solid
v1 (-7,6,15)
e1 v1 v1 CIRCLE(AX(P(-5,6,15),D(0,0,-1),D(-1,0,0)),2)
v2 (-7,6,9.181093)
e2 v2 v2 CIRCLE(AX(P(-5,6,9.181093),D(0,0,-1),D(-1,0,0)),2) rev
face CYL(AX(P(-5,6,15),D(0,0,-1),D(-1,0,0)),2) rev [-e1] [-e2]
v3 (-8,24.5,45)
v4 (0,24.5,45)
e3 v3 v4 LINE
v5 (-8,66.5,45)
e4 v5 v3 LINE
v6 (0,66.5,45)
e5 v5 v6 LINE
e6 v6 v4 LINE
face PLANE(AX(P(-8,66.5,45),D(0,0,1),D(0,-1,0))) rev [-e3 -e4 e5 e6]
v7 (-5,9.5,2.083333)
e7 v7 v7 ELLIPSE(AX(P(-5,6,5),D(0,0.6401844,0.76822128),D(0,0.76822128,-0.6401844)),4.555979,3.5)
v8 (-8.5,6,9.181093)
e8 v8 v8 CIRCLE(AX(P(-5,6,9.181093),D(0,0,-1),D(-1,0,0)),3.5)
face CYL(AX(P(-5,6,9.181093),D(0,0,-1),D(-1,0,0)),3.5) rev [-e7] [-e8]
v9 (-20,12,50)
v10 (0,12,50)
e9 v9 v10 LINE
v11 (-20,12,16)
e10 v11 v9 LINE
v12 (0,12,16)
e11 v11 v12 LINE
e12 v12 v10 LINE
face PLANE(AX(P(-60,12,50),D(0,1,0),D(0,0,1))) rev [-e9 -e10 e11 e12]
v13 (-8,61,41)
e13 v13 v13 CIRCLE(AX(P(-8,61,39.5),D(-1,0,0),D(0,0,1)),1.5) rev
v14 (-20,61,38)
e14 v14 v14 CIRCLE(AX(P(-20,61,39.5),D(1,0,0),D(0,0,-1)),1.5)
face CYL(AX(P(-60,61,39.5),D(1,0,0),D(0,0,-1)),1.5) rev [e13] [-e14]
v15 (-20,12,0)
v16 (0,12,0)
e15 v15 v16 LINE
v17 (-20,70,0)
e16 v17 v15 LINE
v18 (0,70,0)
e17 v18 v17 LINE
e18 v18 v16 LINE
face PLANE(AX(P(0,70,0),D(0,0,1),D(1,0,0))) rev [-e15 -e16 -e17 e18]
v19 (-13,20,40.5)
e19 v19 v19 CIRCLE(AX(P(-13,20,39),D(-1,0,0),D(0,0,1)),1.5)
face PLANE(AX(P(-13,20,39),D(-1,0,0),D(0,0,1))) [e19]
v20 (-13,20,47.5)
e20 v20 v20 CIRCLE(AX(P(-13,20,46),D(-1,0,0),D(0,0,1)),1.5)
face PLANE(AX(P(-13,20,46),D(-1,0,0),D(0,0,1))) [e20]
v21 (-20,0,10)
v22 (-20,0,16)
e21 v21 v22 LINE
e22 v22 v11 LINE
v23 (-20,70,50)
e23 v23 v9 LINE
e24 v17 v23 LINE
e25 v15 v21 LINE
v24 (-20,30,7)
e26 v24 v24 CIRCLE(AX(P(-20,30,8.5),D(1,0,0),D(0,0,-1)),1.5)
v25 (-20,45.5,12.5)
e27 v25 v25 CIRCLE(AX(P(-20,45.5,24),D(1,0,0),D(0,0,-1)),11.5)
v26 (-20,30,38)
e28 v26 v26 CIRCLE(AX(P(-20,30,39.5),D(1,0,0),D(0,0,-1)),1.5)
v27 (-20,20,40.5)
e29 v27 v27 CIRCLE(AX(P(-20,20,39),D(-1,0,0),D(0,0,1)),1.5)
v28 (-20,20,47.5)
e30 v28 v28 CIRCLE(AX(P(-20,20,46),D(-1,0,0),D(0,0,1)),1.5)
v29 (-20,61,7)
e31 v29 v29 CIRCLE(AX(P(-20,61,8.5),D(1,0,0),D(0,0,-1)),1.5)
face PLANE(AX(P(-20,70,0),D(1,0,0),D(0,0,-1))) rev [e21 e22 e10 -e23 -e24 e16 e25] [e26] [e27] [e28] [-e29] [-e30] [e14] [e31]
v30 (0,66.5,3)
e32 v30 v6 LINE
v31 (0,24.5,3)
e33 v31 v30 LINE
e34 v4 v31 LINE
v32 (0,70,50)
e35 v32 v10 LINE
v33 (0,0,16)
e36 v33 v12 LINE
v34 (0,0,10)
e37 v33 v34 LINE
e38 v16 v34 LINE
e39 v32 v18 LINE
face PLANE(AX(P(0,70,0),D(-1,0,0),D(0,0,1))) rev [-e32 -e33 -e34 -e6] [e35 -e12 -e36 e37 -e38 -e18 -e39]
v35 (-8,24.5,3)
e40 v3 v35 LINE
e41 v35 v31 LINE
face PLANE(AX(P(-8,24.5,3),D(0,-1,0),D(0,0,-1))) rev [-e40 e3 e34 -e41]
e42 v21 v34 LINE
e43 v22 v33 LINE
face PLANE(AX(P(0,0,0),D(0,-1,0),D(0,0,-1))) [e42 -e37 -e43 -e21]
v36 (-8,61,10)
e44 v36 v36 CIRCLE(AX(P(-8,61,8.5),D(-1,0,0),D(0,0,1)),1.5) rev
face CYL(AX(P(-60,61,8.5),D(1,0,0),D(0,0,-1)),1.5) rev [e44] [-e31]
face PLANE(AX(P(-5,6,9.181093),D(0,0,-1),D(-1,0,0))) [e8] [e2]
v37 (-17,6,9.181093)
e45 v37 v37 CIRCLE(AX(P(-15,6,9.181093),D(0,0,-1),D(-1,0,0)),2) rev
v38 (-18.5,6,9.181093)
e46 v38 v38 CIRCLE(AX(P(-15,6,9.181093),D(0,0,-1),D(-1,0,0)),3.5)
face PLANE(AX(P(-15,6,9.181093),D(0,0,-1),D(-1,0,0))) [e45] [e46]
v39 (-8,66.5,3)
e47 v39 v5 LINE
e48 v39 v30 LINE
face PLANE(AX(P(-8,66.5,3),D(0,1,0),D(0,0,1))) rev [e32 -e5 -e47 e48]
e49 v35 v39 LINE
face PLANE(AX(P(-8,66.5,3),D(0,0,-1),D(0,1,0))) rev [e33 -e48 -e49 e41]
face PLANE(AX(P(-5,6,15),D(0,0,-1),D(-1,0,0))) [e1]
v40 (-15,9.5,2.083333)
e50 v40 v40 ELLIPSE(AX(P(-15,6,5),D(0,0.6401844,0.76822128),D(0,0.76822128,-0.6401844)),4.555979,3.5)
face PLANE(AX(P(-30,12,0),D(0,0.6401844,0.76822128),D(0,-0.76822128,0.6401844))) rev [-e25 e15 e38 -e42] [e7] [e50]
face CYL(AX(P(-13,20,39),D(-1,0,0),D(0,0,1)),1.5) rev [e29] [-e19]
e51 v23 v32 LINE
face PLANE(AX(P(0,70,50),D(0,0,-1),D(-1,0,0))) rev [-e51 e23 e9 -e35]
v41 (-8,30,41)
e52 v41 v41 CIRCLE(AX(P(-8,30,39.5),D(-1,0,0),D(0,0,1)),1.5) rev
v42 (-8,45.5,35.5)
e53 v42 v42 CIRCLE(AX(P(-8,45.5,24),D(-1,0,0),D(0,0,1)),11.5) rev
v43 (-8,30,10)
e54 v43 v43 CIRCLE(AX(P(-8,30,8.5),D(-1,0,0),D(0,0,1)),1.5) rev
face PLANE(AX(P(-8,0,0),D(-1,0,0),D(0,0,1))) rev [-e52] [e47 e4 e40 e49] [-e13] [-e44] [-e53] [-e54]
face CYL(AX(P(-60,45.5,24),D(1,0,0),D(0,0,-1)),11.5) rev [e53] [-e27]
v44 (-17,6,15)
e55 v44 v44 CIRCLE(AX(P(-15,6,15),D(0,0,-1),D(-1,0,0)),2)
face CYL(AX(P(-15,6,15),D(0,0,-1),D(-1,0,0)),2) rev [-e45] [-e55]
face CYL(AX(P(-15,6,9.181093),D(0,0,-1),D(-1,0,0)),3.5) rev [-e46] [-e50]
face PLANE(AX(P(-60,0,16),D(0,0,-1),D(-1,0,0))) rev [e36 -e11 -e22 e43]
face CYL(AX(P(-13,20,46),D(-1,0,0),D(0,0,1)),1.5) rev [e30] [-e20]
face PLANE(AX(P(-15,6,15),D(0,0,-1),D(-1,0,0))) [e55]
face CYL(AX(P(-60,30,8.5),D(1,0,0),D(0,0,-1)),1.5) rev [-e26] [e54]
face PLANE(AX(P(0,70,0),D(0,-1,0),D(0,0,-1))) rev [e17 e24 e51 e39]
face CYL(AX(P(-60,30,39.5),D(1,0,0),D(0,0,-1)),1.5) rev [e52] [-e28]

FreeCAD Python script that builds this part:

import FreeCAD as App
import Part
import Sketcher

V = App.Vector

doc = App.newDocument("Part")
params = doc.addObject("Spreadsheet::Sheet", "Params")
for row, (alias, value) in enumerate([
    ("sketch1_width", "20 mm"),
    ("sketch1_height", "50 mm"),
    ("pad1_length", "70 mm"),
    ("sketch2_diameter", "3 mm"),
    ("sketch2_diameter2", "23 mm"),
    ("pocket1_length", "60 mm"),
    ("sketch3_width", "12 mm"),
    ("sketch3_height", "34 mm"),
    ("pocket2_length", "60 mm"),
    ("sketch4_diameter", "4 mm"),
    ("pocket3_length", "15 mm"),
    ("sketch5_width", "42 mm"),
    ("pocket4_length", "8 mm"),
    ("sketch6_width", "12 mm"),
    ("sketch6_height", "10 mm"),
    ("pocket5_length", "30 mm"),
    ("sketch7_diameter", "7 mm"),
    ("pocket6_length", "9.181093 mm"),
    ("sketch8_diameter", "3 mm"),
    ("pocket7_length", "7 mm"),
], start=1):
    params.set(f"A{row}", alias)
    params.set(f"B{row}", "=" + value)
    params.setAlias(f"B{row}", alias)

body = doc.addObject("PartDesign::Body", "Body")

# Sketch on XZ plane
sketch1 = body.newObject("Sketcher::SketchObject", "Sketch")
sketch1.AttachmentSupport = (doc.getObject("XZ_Plane"), [""])
sketch1.MapMode = "FlatFace"
sketch1.addGeometry([
    Part.LineSegment(V(-20, 0, 0), V(-20, 50, 0)),
    Part.LineSegment(V(-20, 50, 0), V(0, 50, 0)),
    Part.LineSegment(V(0, 50, 0), V(0, 0, 0)),
    Part.LineSegment(V(0, 0, 0), V(-20, 0, 0)),
], False)
sketch1.addConstraint([
    Sketcher.Constraint("Coincident", 0, 2, 1, 1),
    Sketcher.Constraint("Coincident", 1, 2, 2, 1),
    Sketcher.Constraint("Coincident", 2, 2, 3, 1),
    Sketcher.Constraint("Coincident", 3, 2, 0, 1),
    Sketcher.Constraint("Vertical", 0),
    Sketcher.Constraint("Horizontal", 1),
    Sketcher.Constraint("Vertical", 2),
    Sketcher.Constraint("Horizontal", 3),
    Sketcher.Constraint("Coincident", 2, 2, -1, 1),
    Sketcher.Constraint("DistanceX", 1, 1, 1, 2, 20.0),
    Sketcher.Constraint("DistanceY", 0, 1, 0, 2, 50.0),
])
sketch1.setExpression("Constraints[9]", "Params.sketch1_width")
sketch1.setExpression("Constraints[10]", "Params.sketch1_height")
pad1 = body.newObject("PartDesign::Pad", "Pad")
pad1.Profile = sketch1
pad1.setExpression("Length", "Params.pad1_length")
pad1.Reversed = True

# Sketch on YZ plane
sketch2 = body.newObject("Sketcher::SketchObject", "Sketch001")
sketch2.AttachmentSupport = (doc.getObject("YZ_Plane"), [""])
sketch2.MapMode = "FlatFace"
sketch2.addGeometry([
    Part.Circle(V(61, 8.5, 0), V(0, 0, 1), 1.5),  # 0
    Part.Circle(V(45.5, 24, 0), V(0, 0, 1), 11.5),  # 1
    Part.Circle(V(30, 8.5, 0), V(0, 0, 1), 1.5),  # 2
    Part.Circle(V(30, 39.5, 0), V(0, 0, 1), 1.5),  # 3
    Part.Circle(V(61, 39.5, 0), V(0, 0, 1), 1.5),  # 4
], False)
sketch2.addConstraint([
    Sketcher.Constraint("Equal", 0, 2),
    Sketcher.Constraint("Equal", 2, 3),
    Sketcher.Constraint("Equal", 3, 4),
    Sketcher.Constraint("Horizontal", 0, 3, 2, 3),
    Sketcher.Constraint("Horizontal", 3, 3, 4, 3),
    Sketcher.Constraint("Vertical", 2, 3, 3, 3),
    Sketcher.Constraint("Vertical", 0, 3, 4, 3),
    Sketcher.Constraint("Diameter", 0, 3.0),
    Sketcher.Constraint("Diameter", 1, 23.0),
    Sketcher.Constraint("DistanceX", -1, 1, 0, 3, 61.0),
    Sketcher.Constraint("DistanceY", -1, 1, 1, 3, 24.0),
    Sketcher.Constraint("DistanceX", -1, 1, 2, 3, 30.0),
    Sketcher.Constraint("DistanceY", 2, 3, 3, 3, 31.0),
    Sketcher.Constraint("DistanceY", -1, 1, 0, 3, 8.5),
    Sketcher.Constraint("DistanceX", -1, 1, 1, 3, 45.5),
])
sketch2.setExpression("Constraints[7]", "Params.sketch2_diameter")
sketch2.setExpression("Constraints[8]", "Params.sketch2_diameter2")
pocket1 = body.newObject("PartDesign::Pocket", "Pocket")
pocket1.Profile = sketch2
pocket1.setExpression("Length", "Params.pocket1_length")

# Sketch on YZ plane
sketch3 = body.newObject("Sketcher::SketchObject", "Sketch002")
sketch3.AttachmentSupport = (doc.getObject("YZ_Plane"), [""])
sketch3.MapMode = "FlatFace"
sketch3.addGeometry([
    Part.LineSegment(V(12, 50, 0), V(0, 50, 0)),
    Part.LineSegment(V(0, 50, 0), V(0, 16, 0)),
    Part.LineSegment(V(0, 16, 0), V(12, 16, 0)),
    Part.LineSegment(V(12, 16, 0), V(12, 50, 0)),
], False)
sketch3.addConstraint([
    Sketcher.Constraint("Coincident", 0, 2, 1, 1),
    Sketcher.Constraint("Coincident", 1, 2, 2, 1),
    Sketcher.Constraint("Coincident", 2, 2, 3, 1),
    Sketcher.Constraint("Coincident", 3, 2, 0, 1),
    Sketcher.Constraint("Horizontal", 0),
    Sketcher.Constraint("Vertical", 1),
    Sketcher.Constraint("Horizontal", 2),
    Sketcher.Constraint("Vertical", 3),
    Sketcher.Constraint("PointOnObject", 0, 2, -2),
    Sketcher.Constraint("DistanceX", 0, 2, 0, 1, 12.0),
    Sketcher.Constraint("DistanceY", 1, 2, 1, 1, 34.0),
    Sketcher.Constraint("DistanceY", -1, 1, 0, 2, 50.0),
])
sketch3.setExpression("Constraints[9]", "Params.sketch3_width")
sketch3.setExpression("Constraints[10]", "Params.sketch3_height")
pocket2 = body.newObject("PartDesign::Pocket", "Pocket001")
pocket2.Profile = sketch3
pocket2.setExpression("Length", "Params.pocket2_length")

# Sketch on XY plane
sketch4 = body.newObject("Sketcher::SketchObject", "Sketch003")
sketch4.AttachmentSupport = (doc.getObject("XY_Plane"), [""])
sketch4.MapMode = "FlatFace"
sketch4.addGeometry([
    Part.Circle(V(-15, 6, 0), V(0, 0, 1), 2),
    Part.Circle(V(-5, 6, 0), V(0, 0, 1), 2),
], False)
sketch4.addConstraint([
    Sketcher.Constraint("Equal", 0, 1),
    Sketcher.Constraint("Horizontal", 0, 3, 1, 3),
    Sketcher.Constraint("Diameter", 0, 4.0),
    Sketcher.Constraint("DistanceX", 0, 3, -1, 1, 15.0),
    Sketcher.Constraint("DistanceY", -1, 1, 0, 3, 6.0),
    Sketcher.Constraint("DistanceX", 1, 3, -1, 1, 5.0),
])
sketch4.setExpression("Constraints[2]", "Params.sketch4_diameter")
pocket3 = body.newObject("PartDesign::Pocket", "Pocket002")
pocket3.Profile = sketch4
pocket3.setExpression("Length", "Params.pocket3_length")
pocket3.Reversed = True

# Sketch on YZ plane
sketch5 = body.newObject("Sketcher::SketchObject", "Sketch004")
sketch5.AttachmentSupport = (doc.getObject("YZ_Plane"), [""])
sketch5.MapMode = "FlatFace"
sketch5.addGeometry([
    Part.LineSegment(V(66.5, 45, 0), V(24.5, 45, 0)),
    Part.LineSegment(V(24.5, 45, 0), V(24.5, 3, 0)),
    Part.LineSegment(V(24.5, 3, 0), V(66.5, 3, 0)),
    Part.LineSegment(V(66.5, 3, 0), V(66.5, 45, 0)),
], False)
sketch5.addConstraint([
    Sketcher.Constraint("Coincident", 0, 2, 1, 1),
    Sketcher.Constraint("Coincident", 1, 2, 2, 1),
    Sketcher.Constraint("Coincident", 2, 2, 3, 1),
    Sketcher.Constraint("Coincident", 3, 2, 0, 1),
    Sketcher.Constraint("Horizontal", 0),
    Sketcher.Constraint("Vertical", 1),
    Sketcher.Constraint("Horizontal", 2),
    Sketcher.Constraint("Vertical", 3),
    Sketcher.Constraint("Equal", 2, 1),
    Sketcher.Constraint("DistanceX", 0, 2, 0, 1, 42.0),
    Sketcher.Constraint("DistanceY", -1, 1, 0, 2, 45.0),
    Sketcher.Constraint("DistanceX", -1, 1, 0, 2, 24.5),
])
sketch5.setExpression("Constraints[9]", "Params.sketch5_width")
pocket4 = body.newObject("PartDesign::Pocket", "Pocket003")
pocket4.Profile = sketch5
pocket4.setExpression("Length", "Params.pocket4_length")

# Sketch on YZ plane
sketch6 = body.newObject("Sketcher::SketchObject", "Sketch005")
sketch6.AttachmentSupport = (doc.getObject("YZ_Plane"), [""])
sketch6.MapMode = "FlatFace"
sketch6.addGeometry([
    Part.LineSegment(V(0, 10, 0), V(0, 0, 0)),
    Part.LineSegment(V(0, 0, 0), V(12, 0, 0)),
    Part.LineSegment(V(12, 0, 0), V(0, 10, 0)),
], False)
sketch6.addConstraint([
    Sketcher.Constraint("Coincident", 0, 2, 1, 1),
    Sketcher.Constraint("Coincident", 1, 2, 2, 1),
    Sketcher.Constraint("Coincident", 2, 2, 0, 1),
    Sketcher.Constraint("Vertical", 0),
    Sketcher.Constraint("Horizontal", 1),
    Sketcher.Constraint("Coincident", 0, 2, -1, 1),
    Sketcher.Constraint("DistanceX", 1, 1, 1, 2, 12.0),
    Sketcher.Constraint("DistanceY", 0, 2, 0, 1, 10.0),
])
sketch6.setExpression("Constraints[6]", "Params.sketch6_width")
sketch6.setExpression("Constraints[7]", "Params.sketch6_height")
pocket5 = body.newObject("PartDesign::Pocket", "Pocket004")
pocket5.Profile = sketch6
pocket5.setExpression("Length", "Params.pocket5_length")

# Sketch on XY plane
sketch7 = body.newObject("Sketcher::SketchObject", "Sketch006")
sketch7.AttachmentSupport = (doc.getObject("XY_Plane"), [""])
sketch7.MapMode = "FlatFace"
sketch7.addGeometry([
    Part.Circle(V(-15, 6, 0), V(0, 0, 1), 3.5),
    Part.Circle(V(-5, 6, 0), V(0, 0, 1), 3.5),
], False)
sketch7.addConstraint([
    Sketcher.Constraint("Equal", 0, 1),
    Sketcher.Constraint("Horizontal", 0, 3, 1, 3),
    Sketcher.Constraint("Diameter", 0, 7.0),
    Sketcher.Constraint("DistanceX", 0, 3, -1, 1, 15.0),
    Sketcher.Constraint("DistanceY", -1, 1, 0, 3, 6.0),
    Sketcher.Constraint("DistanceX", 1, 3, -1, 1, 5.0),
])
sketch7.setExpression("Constraints[2]", "Params.sketch7_diameter")
pocket6 = body.newObject("PartDesign::Pocket", "Pocket005")
pocket6.Profile = sketch7
pocket6.setExpression("Length", "Params.pocket6_length")
pocket6.Reversed = True

# Sketch on YZ plane
sketch8 = body.newObject("Sketcher::SketchObject", "Sketch007")
sketch8.AttachmentSupport = (doc.getObject("YZ_Plane"), [""])
sketch8.MapMode = "FlatFace"
sketch8.AttachmentOffset = App.Placement(V(0, 0, -20), App.Rotation())
sketch8.addGeometry([
    Part.Circle(V(20, 46, 0), V(0, 0, 1), 1.5),
    Part.Circle(V(20, 39, 0), V(0, 0, 1), 1.5),
], False)
sketch8.addConstraint([
    Sketcher.Constraint("Equal", 0, 1),
    Sketcher.Constraint("Vertical", 0, 3, 1, 3),
    Sketcher.Constraint("Diameter", 0, 3.0),
    Sketcher.Constraint("DistanceX", -1, 1, 0, 3, 20.0),
    Sketcher.Constraint("DistanceY", -1, 1, 0, 3, 46.0),
    Sketcher.Constraint("DistanceY", -1, 1, 1, 3, 39.0),
])
sketch8.setExpression("Constraints[2]", "Params.sketch8_diameter")
pocket7 = body.newObject("PartDesign::Pocket", "Pocket006")
pocket7.Profile = sketch8
pocket7.setExpression("Length", "Params.pocket7_length")
pocket7.Reversed = True

doc.recompute()
